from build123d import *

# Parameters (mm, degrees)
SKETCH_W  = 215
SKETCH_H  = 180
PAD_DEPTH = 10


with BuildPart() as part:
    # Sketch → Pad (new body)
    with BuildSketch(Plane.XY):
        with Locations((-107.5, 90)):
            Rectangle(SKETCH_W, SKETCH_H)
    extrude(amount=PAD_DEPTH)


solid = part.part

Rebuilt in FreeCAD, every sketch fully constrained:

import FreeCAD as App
import Part
import Sketcher

doc = App.newDocument("Part")
body = doc.addObject("PartDesign::Body", "Body")

# Sketch on XY plane
sketch1 = body.newObject("Sketcher::SketchObject", "Sketch")
sketch1.AttachmentSupport = (doc.getObject("XY_Plane"), [""])
sketch1.MapMode = "FlatFace"
sketch1.addGeometry([
    Part.LineSegment(App.Vector(-215, 180, 0), App.Vector(-215, 0, 0)),
    Part.LineSegment(App.Vector(-215, 0, 0), App.Vector(0, 0, 0)),
    Part.LineSegment(App.Vector(0, 0, 0), App.Vector(0, 180, 0)),
    Part.LineSegment(App.Vector(0, 180, 0), App.Vector(-215, 180, 0)),
], False)
sketch1.addConstraint([
    Sketcher.Constraint("Coincident", 0, 2, 1, 1),
    Sketcher.Constraint("Coincident", 1, 2, 2, 1),
    Sketcher.Constraint("Coincident", 2, 2, 3, 1),
    Sketcher.Constraint("Coincident", 3, 2, 0, 1),
    Sketcher.Constraint("Vertical", 0),
    Sketcher.Constraint("Horizontal", 1),
    Sketcher.Constraint("Vertical", 2),
    Sketcher.Constraint("Horizontal", 3),
    Sketcher.Constraint("Coincident", 1, 2, -1, 1),
    Sketcher.Constraint("DistanceX", 1, 1, 1, 2, 215.0),
    Sketcher.Constraint("DistanceY", 0, 2, 0, 1, 180.0),
])
pad1 = body.newObject("PartDesign::Pad", "Pad")
pad1.Profile = sketch1
pad1.Length = 10

doc.recompute()
